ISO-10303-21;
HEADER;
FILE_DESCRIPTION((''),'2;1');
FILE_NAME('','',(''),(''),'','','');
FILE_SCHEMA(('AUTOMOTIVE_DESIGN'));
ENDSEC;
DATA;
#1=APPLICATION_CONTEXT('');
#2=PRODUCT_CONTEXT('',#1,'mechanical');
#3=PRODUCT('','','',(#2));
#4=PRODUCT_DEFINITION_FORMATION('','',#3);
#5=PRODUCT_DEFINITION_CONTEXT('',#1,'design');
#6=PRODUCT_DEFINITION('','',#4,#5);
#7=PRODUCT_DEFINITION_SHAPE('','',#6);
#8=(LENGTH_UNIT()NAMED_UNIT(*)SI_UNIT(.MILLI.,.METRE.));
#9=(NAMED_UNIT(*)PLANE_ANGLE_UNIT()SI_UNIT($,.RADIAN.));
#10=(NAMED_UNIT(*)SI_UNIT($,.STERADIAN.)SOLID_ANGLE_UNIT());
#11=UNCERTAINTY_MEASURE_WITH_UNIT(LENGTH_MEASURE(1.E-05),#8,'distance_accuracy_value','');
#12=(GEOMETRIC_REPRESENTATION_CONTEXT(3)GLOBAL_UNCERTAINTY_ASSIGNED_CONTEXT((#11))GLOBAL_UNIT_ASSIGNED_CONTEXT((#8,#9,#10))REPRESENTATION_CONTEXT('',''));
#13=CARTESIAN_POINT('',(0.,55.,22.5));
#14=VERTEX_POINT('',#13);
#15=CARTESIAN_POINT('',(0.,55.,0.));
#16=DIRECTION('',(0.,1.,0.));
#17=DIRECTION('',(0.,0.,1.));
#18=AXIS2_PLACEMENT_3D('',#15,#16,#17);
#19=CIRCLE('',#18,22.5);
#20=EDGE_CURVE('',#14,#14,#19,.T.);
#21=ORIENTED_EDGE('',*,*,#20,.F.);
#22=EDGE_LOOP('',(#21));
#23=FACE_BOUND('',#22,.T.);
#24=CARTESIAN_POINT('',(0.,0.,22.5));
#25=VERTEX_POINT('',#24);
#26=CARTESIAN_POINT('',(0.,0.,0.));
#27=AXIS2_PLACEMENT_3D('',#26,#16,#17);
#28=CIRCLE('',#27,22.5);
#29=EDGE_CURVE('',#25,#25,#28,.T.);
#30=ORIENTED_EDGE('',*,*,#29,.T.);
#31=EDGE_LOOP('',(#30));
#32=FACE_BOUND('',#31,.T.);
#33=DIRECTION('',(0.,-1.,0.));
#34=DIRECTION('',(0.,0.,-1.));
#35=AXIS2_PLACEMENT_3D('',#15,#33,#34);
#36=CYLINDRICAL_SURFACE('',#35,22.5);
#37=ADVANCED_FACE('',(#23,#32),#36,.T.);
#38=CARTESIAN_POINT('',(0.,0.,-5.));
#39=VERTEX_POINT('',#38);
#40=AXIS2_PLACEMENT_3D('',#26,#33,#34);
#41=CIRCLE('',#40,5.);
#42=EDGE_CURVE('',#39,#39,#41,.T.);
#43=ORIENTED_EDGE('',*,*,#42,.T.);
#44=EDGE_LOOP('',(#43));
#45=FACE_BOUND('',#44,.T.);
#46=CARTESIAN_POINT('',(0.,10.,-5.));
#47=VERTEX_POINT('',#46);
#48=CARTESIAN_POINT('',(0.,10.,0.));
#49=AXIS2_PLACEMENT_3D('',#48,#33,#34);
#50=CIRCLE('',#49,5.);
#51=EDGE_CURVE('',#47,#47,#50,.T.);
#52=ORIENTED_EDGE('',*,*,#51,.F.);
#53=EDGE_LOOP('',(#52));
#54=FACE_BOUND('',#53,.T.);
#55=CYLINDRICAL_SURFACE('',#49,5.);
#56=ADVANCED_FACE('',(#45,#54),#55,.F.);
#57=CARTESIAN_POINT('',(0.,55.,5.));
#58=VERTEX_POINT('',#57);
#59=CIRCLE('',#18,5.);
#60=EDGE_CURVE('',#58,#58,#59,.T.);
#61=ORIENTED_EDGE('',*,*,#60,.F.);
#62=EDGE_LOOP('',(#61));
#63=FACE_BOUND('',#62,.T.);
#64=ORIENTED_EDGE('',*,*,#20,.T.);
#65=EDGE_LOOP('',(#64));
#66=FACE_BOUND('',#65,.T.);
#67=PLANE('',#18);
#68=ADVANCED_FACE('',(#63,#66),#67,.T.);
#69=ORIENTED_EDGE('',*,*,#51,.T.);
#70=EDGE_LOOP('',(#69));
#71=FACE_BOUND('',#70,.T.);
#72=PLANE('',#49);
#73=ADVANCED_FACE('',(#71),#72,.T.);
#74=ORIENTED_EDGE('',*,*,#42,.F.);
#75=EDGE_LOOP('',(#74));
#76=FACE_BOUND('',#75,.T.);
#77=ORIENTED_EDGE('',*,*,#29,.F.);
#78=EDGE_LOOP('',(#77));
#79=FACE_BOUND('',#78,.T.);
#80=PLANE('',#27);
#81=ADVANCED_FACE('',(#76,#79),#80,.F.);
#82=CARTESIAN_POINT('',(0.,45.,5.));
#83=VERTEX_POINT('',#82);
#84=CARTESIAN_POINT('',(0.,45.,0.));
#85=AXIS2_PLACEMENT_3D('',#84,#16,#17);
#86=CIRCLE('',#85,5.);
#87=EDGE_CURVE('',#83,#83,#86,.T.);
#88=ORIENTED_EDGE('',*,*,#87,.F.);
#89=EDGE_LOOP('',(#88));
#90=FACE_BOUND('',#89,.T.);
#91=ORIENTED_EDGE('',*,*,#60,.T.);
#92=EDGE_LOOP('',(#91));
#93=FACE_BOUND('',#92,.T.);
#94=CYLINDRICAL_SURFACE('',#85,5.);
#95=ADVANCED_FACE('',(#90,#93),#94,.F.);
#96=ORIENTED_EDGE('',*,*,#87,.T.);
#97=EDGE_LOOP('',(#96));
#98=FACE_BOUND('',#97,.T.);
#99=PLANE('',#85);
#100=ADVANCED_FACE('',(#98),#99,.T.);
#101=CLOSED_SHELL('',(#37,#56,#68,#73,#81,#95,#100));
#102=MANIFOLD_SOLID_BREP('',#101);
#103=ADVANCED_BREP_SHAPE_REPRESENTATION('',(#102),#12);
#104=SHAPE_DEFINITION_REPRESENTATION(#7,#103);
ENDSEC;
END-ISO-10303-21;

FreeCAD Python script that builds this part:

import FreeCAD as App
import Part
import Sketcher

doc = App.newDocument("Part")
body = doc.addObject("PartDesign::Body", "Body")

sketch1 = body.newObject("Sketcher::SketchObject", "Sketch")
sketch1.AttachmentSupport = (doc.getObject("XZ_Plane"), [""])
sketch1.MapMode = "FlatFace"
sketch1.addGeometry(Part.Circle(App.Vector(0, 0, 0), App.Vector(0, 0, 1), 22), False)
sketch1.addConstraint([
    Sketcher.Constraint("Coincident", 0, 3, -1, 1),
    Sketcher.Constraint("Diameter", 0, 45.0),
])
pad1 = body.newObject("PartDesign::Pad", "Pad")
pad1.Profile = sketch1
pad1.Length = 55
pad1.Reversed = True

sketch2 = body.newObject("Sketcher::SketchObject", "Sketch001")
sketch2.AttachmentSupport = (doc.getObject("XZ_Plane"), [""])
sketch2.MapMode = "FlatFace"
sketch2.AttachmentOffset = App.Placement(App.Vector(0, 0, -55), App.Rotation())
sketch2.addGeometry(Part.Circle(App.Vector(0, 0, 0), App.Vector(0, 0, 1), 5), False)
sketch2.addConstraint([
    Sketcher.Constraint("Coincident", 0, 3, -1, 1),
    Sketcher.Constraint("Diameter", 0, 10.0),
])
pocket1 = body.newObject("PartDesign::Pocket", "Pocket")
pocket1.Profile = sketch2
pocket1.Length = 10
pocket1.Reversed = True

sketch3 = body.newObject("Sketcher::SketchObject", "Sketch002")
sketch3.AttachmentSupport = (doc.getObject("XZ_Plane"), [""])
sketch3.MapMode = "FlatFace"
sketch3.addGeometry(Part.Circle(App.Vector(0, 0, 0), App.Vector(0, 0, 1), 5), False)
sketch3.addConstraint([
    Sketcher.Constraint("Coincident", 0, 3, -1, 1),
    Sketcher.Constraint("Diameter", 0, 10.0),
])
pocket2 = body.newObject("PartDesign::Pocket", "Pocket001")
pocket2.Profile = sketch3
pocket2.Length = 10

doc.recompute()
